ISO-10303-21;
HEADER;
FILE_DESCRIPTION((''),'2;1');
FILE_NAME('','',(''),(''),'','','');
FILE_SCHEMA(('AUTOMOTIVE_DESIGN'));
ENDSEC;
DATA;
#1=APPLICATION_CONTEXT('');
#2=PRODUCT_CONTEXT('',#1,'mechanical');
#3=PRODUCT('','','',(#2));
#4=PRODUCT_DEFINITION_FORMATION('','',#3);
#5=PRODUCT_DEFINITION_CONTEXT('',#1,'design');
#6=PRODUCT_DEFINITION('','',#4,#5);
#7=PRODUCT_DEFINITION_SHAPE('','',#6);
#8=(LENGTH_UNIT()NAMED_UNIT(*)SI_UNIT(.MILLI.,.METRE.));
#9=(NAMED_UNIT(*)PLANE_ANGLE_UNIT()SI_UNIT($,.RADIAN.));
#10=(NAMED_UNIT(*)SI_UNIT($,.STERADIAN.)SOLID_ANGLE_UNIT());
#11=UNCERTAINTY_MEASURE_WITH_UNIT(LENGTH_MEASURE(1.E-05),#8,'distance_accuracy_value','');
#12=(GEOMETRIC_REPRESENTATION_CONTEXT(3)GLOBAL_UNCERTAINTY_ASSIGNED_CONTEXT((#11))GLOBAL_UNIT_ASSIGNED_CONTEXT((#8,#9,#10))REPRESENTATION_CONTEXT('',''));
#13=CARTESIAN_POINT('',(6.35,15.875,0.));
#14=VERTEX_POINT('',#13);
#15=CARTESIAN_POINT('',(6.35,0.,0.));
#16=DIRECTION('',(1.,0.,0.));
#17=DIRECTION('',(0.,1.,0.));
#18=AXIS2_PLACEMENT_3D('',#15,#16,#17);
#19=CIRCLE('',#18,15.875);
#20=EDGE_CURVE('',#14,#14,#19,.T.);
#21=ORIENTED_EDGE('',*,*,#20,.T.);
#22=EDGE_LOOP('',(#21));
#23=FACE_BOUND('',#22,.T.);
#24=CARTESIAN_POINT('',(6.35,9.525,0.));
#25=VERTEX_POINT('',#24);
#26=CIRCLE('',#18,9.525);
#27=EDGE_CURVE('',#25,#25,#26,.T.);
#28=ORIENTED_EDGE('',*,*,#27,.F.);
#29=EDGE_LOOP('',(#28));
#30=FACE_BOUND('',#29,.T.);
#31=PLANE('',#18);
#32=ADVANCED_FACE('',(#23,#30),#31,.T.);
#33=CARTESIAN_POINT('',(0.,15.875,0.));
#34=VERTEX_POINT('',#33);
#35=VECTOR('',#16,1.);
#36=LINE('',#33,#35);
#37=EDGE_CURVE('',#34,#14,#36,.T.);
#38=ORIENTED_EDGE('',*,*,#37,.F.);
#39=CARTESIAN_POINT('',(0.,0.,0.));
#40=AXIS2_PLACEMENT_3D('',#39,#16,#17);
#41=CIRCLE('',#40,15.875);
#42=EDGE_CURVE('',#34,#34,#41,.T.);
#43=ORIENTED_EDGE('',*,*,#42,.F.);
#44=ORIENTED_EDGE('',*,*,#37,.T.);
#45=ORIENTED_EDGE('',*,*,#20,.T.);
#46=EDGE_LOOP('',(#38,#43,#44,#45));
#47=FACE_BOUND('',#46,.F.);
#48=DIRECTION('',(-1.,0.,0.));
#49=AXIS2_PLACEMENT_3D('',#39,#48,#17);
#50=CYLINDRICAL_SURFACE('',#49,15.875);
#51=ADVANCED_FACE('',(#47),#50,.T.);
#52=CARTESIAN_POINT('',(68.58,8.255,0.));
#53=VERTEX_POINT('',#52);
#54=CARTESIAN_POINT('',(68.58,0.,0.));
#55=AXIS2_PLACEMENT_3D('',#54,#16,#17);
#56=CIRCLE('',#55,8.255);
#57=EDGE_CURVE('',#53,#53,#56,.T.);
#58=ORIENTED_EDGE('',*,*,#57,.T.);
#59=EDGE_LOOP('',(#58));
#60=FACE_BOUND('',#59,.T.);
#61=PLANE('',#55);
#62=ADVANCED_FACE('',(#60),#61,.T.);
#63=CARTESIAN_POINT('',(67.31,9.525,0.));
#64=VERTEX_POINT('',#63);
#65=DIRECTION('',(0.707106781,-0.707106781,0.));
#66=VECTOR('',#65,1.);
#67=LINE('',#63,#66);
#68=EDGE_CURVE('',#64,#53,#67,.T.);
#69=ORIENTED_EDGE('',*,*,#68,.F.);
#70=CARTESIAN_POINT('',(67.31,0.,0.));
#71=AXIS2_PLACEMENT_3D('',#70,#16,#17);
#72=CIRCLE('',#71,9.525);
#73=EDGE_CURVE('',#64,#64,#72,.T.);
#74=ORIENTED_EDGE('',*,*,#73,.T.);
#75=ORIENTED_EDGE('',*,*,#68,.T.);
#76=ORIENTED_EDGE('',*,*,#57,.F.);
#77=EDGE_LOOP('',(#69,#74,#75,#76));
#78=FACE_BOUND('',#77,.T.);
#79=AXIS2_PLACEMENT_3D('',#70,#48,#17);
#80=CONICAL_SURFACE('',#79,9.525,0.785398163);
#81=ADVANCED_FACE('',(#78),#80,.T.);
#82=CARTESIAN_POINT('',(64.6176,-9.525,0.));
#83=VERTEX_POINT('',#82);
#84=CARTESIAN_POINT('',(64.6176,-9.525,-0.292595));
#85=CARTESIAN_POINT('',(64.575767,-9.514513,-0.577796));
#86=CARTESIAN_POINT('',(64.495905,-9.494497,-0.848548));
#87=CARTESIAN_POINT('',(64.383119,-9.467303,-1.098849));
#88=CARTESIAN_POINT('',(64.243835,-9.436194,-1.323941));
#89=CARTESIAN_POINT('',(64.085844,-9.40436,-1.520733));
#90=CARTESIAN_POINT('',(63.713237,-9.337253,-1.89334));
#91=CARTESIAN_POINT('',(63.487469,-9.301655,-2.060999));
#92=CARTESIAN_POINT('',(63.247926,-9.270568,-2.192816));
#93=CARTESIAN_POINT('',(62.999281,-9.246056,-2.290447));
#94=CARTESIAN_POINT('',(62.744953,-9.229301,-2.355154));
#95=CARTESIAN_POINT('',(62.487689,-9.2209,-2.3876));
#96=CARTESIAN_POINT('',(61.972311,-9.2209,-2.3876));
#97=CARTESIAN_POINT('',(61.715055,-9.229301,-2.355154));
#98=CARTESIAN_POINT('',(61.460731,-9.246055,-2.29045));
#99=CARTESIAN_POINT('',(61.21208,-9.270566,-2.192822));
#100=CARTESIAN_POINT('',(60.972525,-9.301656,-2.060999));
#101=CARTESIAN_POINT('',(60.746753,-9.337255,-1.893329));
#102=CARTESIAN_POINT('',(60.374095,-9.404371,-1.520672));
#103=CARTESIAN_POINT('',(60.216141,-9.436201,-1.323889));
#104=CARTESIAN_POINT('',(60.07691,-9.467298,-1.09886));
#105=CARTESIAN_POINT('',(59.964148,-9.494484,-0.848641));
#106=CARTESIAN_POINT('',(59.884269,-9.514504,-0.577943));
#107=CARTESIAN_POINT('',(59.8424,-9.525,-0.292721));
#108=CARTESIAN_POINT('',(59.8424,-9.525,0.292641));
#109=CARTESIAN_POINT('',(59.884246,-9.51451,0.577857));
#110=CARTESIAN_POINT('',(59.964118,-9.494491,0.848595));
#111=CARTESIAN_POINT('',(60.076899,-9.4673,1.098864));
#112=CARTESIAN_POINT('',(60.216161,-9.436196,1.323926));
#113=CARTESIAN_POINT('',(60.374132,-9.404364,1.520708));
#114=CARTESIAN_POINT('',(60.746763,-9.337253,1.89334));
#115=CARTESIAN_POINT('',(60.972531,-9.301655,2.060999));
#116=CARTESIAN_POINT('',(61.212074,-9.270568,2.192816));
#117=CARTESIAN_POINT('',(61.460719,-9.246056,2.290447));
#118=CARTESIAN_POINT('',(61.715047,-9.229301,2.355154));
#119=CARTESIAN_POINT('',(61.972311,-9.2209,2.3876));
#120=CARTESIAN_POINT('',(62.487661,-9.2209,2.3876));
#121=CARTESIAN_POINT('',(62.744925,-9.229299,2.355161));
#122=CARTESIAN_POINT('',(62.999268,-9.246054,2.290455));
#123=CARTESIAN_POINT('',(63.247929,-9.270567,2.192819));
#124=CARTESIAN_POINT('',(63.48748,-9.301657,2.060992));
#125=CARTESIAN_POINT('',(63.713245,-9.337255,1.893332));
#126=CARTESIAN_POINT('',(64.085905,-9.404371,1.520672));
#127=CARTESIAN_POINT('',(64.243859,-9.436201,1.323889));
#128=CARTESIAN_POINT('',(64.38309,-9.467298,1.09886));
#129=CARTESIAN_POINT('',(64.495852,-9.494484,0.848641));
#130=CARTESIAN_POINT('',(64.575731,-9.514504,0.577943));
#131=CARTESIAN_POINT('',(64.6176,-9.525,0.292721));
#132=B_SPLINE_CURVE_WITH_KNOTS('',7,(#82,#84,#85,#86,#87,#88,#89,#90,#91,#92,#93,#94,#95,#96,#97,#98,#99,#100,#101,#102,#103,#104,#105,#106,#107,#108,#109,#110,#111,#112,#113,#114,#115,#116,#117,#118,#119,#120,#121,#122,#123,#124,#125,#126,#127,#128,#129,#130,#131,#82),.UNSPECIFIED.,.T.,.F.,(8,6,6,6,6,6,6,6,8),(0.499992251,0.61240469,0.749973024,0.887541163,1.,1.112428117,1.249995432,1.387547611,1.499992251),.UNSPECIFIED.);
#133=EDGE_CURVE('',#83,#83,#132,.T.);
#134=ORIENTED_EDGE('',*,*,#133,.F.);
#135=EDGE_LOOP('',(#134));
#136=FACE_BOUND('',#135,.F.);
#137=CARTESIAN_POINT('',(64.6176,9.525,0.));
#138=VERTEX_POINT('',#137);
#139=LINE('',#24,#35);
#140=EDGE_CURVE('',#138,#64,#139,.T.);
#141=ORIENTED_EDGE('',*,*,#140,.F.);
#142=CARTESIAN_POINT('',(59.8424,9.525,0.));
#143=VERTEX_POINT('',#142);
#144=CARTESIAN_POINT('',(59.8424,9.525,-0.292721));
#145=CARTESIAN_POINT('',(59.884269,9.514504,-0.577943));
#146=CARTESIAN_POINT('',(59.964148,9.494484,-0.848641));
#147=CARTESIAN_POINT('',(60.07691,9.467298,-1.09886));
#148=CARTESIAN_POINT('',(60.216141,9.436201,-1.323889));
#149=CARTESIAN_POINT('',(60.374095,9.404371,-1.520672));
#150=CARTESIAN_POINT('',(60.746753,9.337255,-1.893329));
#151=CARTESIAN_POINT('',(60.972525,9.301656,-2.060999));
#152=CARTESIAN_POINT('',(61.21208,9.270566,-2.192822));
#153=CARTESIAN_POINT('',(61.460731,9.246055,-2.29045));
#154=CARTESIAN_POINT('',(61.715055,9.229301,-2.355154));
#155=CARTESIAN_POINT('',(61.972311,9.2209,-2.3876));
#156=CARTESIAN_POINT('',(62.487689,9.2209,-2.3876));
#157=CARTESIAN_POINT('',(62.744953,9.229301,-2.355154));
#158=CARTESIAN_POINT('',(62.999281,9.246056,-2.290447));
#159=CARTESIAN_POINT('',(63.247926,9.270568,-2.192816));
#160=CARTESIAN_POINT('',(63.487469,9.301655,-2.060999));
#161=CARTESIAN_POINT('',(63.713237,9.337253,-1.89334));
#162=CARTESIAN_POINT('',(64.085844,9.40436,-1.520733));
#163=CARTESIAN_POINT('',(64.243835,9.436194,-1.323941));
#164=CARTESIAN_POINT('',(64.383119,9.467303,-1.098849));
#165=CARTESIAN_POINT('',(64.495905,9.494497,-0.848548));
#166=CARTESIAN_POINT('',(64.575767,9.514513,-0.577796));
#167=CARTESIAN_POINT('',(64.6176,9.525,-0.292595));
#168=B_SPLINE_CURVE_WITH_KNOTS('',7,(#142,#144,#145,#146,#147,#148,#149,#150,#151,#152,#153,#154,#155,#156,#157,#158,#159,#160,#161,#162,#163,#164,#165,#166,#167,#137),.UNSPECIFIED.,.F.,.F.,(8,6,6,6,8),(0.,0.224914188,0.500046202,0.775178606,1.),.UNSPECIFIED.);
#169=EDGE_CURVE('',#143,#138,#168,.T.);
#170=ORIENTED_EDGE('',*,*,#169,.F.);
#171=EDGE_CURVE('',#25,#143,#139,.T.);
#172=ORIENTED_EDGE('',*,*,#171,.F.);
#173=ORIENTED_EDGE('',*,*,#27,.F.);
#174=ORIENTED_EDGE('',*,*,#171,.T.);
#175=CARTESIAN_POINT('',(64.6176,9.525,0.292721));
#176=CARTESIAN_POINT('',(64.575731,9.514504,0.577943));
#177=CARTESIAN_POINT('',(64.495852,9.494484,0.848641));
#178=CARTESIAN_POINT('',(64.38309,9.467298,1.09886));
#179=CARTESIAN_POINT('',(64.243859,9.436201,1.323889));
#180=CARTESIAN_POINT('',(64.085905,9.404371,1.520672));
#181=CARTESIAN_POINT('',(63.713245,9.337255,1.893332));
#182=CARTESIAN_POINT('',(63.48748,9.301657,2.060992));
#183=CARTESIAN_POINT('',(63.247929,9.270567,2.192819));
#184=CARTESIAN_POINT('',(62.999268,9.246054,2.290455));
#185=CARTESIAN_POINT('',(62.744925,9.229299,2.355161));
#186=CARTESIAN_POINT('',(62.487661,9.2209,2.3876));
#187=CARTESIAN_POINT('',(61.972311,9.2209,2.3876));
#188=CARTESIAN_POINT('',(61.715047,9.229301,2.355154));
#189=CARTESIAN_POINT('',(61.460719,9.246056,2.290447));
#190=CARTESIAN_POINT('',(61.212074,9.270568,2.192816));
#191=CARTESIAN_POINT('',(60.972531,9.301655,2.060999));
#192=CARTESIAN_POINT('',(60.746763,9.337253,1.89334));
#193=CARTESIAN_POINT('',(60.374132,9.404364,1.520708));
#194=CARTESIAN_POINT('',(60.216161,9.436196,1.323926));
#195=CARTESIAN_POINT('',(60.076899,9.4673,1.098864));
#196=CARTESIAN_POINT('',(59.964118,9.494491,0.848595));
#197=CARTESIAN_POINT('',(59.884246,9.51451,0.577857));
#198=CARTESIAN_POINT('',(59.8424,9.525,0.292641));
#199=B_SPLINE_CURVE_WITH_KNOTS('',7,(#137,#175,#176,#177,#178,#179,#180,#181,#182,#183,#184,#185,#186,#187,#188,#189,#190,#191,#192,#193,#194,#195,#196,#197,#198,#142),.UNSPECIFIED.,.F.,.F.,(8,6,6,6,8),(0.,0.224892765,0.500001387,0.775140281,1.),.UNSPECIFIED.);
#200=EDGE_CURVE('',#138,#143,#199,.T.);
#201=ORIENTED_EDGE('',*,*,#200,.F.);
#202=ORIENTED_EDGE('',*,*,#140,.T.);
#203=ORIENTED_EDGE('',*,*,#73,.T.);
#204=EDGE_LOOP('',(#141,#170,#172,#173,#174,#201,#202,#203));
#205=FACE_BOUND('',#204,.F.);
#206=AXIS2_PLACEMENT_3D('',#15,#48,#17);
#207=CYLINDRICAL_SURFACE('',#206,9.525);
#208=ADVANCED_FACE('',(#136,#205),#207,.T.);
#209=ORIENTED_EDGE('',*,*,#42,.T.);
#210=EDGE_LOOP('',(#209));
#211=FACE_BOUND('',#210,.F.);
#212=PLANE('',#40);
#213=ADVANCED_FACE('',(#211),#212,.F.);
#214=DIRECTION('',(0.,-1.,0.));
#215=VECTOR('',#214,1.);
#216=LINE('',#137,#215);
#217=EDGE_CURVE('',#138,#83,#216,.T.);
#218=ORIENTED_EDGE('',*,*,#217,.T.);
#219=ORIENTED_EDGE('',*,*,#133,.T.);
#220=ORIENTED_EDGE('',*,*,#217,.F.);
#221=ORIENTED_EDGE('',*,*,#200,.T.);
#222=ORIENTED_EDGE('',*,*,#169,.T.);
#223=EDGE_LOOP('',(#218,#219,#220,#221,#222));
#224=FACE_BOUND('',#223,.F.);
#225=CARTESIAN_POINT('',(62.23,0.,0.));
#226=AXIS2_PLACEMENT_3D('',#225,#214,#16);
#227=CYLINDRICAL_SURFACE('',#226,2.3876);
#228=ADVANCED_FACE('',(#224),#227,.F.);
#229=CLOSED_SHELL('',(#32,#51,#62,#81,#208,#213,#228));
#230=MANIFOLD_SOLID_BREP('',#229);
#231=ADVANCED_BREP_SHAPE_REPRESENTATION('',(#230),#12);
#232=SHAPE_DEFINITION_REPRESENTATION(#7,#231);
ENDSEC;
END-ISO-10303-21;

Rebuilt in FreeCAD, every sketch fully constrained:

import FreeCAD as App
import Part
import Sketcher

V = App.Vector
Q = App.Units.Quantity


def edges_at(feature, points):
    """Names of the edges that pass closest to the given points."""
    edges = feature.Shape.Edges
    near = lambda p: min(range(len(edges)), key=lambda i: edges[i].distToShape(Part.Vertex(*p))[0])
    return sorted({f"Edge{near(p) + 1}" for p in points})

doc = App.newDocument("Part")
body = doc.addObject("PartDesign::Body", "Body")

# Sketch on YZ plane
sketch1 = doc.addObject("Sketcher::SketchObject", "Sketch")
body.addObject(sketch1)
sketch1.AttachmentSupport = (doc.YZ_Plane, [""])
sketch1.MapMode = "FlatFace"
sketch1.addGeometry(Part.Circle(V(0, 0, 0), V(0, 0, 1), 16), False)
sketch1.addConstraint([
    Sketcher.Constraint("Coincident", 0, 3, -1, 1),
    Sketcher.Constraint("Diameter", 0, Q("1.25 in")),
])
pad1 = doc.addObject("PartDesign::Pad", "Pad")
body.addObject(pad1)
pad1.Profile = sketch1
pad1.Length = Q("0.25 in")

# Sketch on YZ plane
sketch2 = doc.addObject("Sketcher::SketchObject", "Sketch001")
body.addObject(sketch2)
sketch2.AttachmentSupport = (doc.YZ_Plane, [""])
sketch2.MapMode = "FlatFace"
sketch2.AttachmentOffset = App.Placement(V(0, 0, 0.25 * 25.4), App.Rotation())
sketch2.addGeometry(Part.Circle(V(0, 0, 0), V(0, 0, 1), 10), False)
sketch2.addConstraint([
    Sketcher.Constraint("Coincident", 0, 3, -1, 1),
    Sketcher.Constraint("Diameter", 0, Q("0.75 in")),
])
pad2 = doc.addObject("PartDesign::Pad", "Pad001")
body.addObject(pad2)
pad2.Profile = sketch2
pad2.Length = Q("2.45 in")
doc.recompute()

chamfer = doc.addObject("PartDesign::Chamfer", "Chamfer")
body.addObject(chamfer)
chamfer.Base = (pad2, edges_at(pad2, [(68.58, -9.525, 0)]))
chamfer.ChamferType = "Two distances"
chamfer.Size = Q("0.05 in")
chamfer.Size2 = Q("0.05 in")

# Sketch on XZ plane
sketch3 = doc.addObject("Sketcher::SketchObject", "Sketch002")
body.addObject(sketch3)
sketch3.AttachmentSupport = (doc.XZ_Plane, [""])
sketch3.MapMode = "FlatFace"
sketch3.addGeometry(Part.Circle(V(62.2, 0, 0), V(0, 0, 1), 2.4), False)
sketch3.addConstraint([
    Sketcher.Constraint("PointOnObject", 0, 3, -1),
    Sketcher.Constraint("Diameter", 0, Q("0.188 in")),
    Sketcher.Constraint("DistanceX", -1, 1, 0, 3, Q("2.45 in")),
])
pocket1 = doc.addObject("PartDesign::Pocket", "Pocket")
body.addObject(pocket1)
pocket1.Profile = sketch3
pocket1.Length = Q("0.75 in")
pocket1.Midplane = True

doc.recompute()
